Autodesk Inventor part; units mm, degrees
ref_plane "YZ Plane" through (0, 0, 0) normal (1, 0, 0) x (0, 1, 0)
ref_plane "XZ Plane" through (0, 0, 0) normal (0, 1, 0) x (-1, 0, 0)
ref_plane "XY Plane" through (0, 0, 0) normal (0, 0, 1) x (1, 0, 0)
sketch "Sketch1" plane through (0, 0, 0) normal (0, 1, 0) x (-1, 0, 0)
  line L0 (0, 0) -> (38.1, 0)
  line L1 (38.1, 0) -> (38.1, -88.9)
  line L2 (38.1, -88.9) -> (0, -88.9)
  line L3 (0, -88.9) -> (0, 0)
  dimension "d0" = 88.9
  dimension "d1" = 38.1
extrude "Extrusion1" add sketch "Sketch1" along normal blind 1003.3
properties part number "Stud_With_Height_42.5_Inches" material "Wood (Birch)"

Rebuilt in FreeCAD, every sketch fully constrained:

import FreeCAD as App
import Part
import Sketcher
Q = App.Units.Quantity


def add_polygon(sketch, points):
    """Adds a closed chain of lines whose ends are joined by coincident constraints."""
    first, n = sketch.GeometryCount, len(points)
    for a, b in zip(points, points[1:] + points[:1]):
        sketch.addGeometry(Part.LineSegment(App.Vector(*a, 0), App.Vector(*b, 0)), False)
    for i in range(n):
        sketch.addConstraint(Sketcher.Constraint("Coincident", first + i, 2, first + (i + 1) % n, 1))

doc = App.newDocument("Part")
body = doc.addObject("PartDesign::Body", "Body")

# Sketch on XZ plane
sketch1 = body.newObject("Sketcher::SketchObject", "Sketch")
sketch1.AttachmentSupport = (doc.getObject("XZ_Plane"), [""])
sketch1.MapMode = "FlatFace"
add_polygon(sketch1, [(-38, 0), (0, 0), (0, -89), (-38, -89)])  # lines 0-3
sketch1.addConstraint(Sketcher.Constraint("Horizontal", 0))
sketch1.addConstraint(Sketcher.Constraint("Vertical", 1))
sketch1.addConstraint(Sketcher.Constraint("Horizontal", 2))
sketch1.addConstraint(Sketcher.Constraint("Vertical", 3))
sketch1.addConstraint(Sketcher.Constraint("Coincident", 0, 2, -1, 1))
sketch1.addConstraint(Sketcher.Constraint("DistanceX", 0, 1, 0, 2, Q("1.5 in")))
sketch1.addConstraint(Sketcher.Constraint("DistanceY", 1, 2, 1, 1, Q("3.5 in")))
pad1 = body.newObject("PartDesign::Pad", "Pad")
pad1.Profile = sketch1
pad1.Length = Q("39.5 in")
pad1.Reversed = True

doc.recompute()
